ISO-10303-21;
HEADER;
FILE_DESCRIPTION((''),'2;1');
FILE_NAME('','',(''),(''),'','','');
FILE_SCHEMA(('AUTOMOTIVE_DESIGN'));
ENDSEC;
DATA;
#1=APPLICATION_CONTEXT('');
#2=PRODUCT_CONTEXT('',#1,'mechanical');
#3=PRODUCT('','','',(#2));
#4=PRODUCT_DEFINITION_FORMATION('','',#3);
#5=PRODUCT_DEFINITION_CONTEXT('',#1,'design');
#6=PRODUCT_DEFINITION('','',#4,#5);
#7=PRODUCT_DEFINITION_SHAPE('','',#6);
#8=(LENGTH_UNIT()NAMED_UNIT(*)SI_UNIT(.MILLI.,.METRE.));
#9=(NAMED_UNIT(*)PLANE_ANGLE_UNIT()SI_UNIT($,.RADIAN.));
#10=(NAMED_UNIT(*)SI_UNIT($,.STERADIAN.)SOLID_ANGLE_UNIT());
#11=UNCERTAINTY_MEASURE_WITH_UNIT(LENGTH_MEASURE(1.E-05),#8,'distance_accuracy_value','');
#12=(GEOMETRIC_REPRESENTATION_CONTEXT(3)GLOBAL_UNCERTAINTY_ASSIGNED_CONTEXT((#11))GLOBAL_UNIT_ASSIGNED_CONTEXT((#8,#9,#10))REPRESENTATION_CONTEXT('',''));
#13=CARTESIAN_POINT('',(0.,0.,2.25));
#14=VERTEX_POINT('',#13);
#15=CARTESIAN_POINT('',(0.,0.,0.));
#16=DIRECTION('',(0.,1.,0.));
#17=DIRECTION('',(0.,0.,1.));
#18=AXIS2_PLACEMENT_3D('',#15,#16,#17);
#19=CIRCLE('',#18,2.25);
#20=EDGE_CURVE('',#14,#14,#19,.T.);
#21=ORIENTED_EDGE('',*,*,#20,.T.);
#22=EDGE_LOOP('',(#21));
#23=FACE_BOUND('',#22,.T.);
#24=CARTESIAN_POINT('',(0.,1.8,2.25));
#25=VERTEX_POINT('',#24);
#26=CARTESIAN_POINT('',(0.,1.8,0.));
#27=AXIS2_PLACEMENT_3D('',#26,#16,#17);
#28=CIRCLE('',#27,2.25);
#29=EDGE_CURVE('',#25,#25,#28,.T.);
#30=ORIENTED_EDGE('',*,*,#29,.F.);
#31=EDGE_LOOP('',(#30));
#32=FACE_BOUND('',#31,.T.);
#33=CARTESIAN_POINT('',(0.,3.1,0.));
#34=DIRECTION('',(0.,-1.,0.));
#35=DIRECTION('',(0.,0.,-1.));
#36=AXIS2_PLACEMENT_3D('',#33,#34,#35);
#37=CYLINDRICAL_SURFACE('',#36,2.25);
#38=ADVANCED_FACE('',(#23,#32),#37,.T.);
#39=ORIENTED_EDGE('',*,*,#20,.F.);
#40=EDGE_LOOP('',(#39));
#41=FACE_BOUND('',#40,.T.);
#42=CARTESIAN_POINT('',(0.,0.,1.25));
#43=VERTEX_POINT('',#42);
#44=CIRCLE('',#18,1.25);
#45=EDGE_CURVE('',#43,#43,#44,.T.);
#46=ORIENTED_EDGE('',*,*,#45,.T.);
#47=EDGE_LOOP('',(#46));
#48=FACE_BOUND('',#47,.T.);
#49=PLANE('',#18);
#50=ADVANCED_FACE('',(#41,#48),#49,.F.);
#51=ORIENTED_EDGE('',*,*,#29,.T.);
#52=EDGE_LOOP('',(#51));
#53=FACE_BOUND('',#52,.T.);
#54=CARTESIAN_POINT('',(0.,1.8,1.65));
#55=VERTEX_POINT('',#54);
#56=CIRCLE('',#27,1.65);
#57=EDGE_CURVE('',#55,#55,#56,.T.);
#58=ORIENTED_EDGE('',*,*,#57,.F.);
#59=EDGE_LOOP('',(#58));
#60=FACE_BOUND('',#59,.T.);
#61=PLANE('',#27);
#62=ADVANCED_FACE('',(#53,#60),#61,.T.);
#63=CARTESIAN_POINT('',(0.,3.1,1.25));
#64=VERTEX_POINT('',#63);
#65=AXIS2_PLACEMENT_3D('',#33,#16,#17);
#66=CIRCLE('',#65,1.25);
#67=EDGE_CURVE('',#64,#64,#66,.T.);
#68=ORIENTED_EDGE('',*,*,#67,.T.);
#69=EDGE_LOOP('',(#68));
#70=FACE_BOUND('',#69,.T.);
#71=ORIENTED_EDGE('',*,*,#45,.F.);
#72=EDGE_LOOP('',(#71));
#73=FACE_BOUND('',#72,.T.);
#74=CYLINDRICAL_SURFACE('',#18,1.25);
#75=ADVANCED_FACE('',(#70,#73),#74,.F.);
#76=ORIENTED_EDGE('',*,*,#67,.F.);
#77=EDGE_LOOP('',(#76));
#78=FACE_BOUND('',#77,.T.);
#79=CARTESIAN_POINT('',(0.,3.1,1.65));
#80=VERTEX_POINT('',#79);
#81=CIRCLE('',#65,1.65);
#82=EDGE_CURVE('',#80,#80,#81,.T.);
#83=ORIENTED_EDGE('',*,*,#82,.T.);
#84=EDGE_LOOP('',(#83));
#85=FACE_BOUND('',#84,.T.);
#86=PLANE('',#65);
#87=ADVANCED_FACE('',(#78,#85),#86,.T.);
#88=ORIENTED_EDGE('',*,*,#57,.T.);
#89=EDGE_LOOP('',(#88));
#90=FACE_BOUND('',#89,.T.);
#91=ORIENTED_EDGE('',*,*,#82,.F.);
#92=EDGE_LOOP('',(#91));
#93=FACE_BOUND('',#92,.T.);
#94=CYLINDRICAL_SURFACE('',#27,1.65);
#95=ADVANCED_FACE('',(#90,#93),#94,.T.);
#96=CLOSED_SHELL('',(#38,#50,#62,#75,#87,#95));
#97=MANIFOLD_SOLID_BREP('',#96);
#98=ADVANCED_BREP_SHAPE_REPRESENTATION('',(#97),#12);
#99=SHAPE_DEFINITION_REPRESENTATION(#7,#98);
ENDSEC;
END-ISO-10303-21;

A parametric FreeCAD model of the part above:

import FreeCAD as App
import Part
import Sketcher
Q = App.Units.Quantity

doc = App.newDocument("Part")
body = doc.addObject("PartDesign::Body", "Body")

sketch1 = body.newObject("Sketcher::SketchObject", "Sketch")
sketch1.AttachmentSupport = (doc.getObject("XZ_Plane"), [""])
sketch1.MapMode = "FlatFace"
sketch1.addGeometry(Part.Circle(App.Vector(0, 0, 0), App.Vector(0, 0, 1), 2.2), False)
sketch1.addConstraint([
    Sketcher.Constraint("Coincident", 0, 3, -1, 1),
    Sketcher.Constraint("Diameter", 0, Q("4.5 mm")),
])
pad1 = body.newObject("PartDesign::Pad", "Pad")
pad1.Profile = sketch1
pad1.Length = 3.1
pad1.Reversed = True

sketch2 = body.newObject("Sketcher::SketchObject", "Sketch001")
sketch2.AttachmentSupport = (doc.getObject("XZ_Plane"), [""])
sketch2.MapMode = "FlatFace"
sketch2.AttachmentOffset = App.Placement(App.Vector(0, 0, -3.1), App.Rotation())
sketch2.addGeometry([
    Part.LineSegment(App.Vector(-4, -4, 0), App.Vector(-4, 4, 0)),
    Part.LineSegment(App.Vector(-4, 4, 0), App.Vector(4, 4, 0)),
    Part.LineSegment(App.Vector(4, 4, 0), App.Vector(4, -4, 0)),
    Part.LineSegment(App.Vector(4, -4, 0), App.Vector(-4, -4, 0)),
    Part.Circle(App.Vector(0, 0, 0), App.Vector(0, 0, 1), 1.6),
], False)
sketch2.addConstraint([
    Sketcher.Constraint("Coincident", 0, 2, 1, 1),
    Sketcher.Constraint("Coincident", 1, 2, 2, 1),
    Sketcher.Constraint("Coincident", 2, 2, 3, 1),
    Sketcher.Constraint("Coincident", 3, 2, 0, 1),
    Sketcher.Constraint("Vertical", 0),
    Sketcher.Constraint("Horizontal", 1),
    Sketcher.Constraint("Vertical", 2),
    Sketcher.Constraint("Horizontal", 3),
    Sketcher.Constraint("Coincident", 4, 3, -1, 1),
    Sketcher.Constraint("Symmetric", 0, 2, 2, 2, -1, 1),
    Sketcher.Constraint("Equal", 3, 0),
    Sketcher.Constraint("Diameter", 4, Q("3.3 mm")),
    Sketcher.Constraint("DistanceX", 1, 1, 1, 2, Q("7.916 mm")),
])
pocket1 = body.newObject("PartDesign::Pocket", "Pocket")
pocket1.Profile = sketch2
pocket1.Length = 1.3
pocket1.Reversed = True

sketch3 = body.newObject("Sketcher::SketchObject", "Sketch002")
sketch3.AttachmentSupport = (doc.getObject("XZ_Plane"), [""])
sketch3.MapMode = "FlatFace"
sketch3.AttachmentOffset = App.Placement(App.Vector(0, 0, -3.1), App.Rotation())
sketch3.addGeometry(Part.Circle(App.Vector(0, 0, 0), App.Vector(0, 0, 1), 1.2), False)
sketch3.addConstraint([
    Sketcher.Constraint("Coincident", 0, 3, -1, 1),
    Sketcher.Constraint("Diameter", 0, Q("2.5 mm")),
])
pocket2 = body.newObject("PartDesign::Pocket", "Pocket001")
pocket2.Profile = sketch3
pocket2.Type = "ThroughAll"
pocket2.Reversed = True

doc.recompute()
